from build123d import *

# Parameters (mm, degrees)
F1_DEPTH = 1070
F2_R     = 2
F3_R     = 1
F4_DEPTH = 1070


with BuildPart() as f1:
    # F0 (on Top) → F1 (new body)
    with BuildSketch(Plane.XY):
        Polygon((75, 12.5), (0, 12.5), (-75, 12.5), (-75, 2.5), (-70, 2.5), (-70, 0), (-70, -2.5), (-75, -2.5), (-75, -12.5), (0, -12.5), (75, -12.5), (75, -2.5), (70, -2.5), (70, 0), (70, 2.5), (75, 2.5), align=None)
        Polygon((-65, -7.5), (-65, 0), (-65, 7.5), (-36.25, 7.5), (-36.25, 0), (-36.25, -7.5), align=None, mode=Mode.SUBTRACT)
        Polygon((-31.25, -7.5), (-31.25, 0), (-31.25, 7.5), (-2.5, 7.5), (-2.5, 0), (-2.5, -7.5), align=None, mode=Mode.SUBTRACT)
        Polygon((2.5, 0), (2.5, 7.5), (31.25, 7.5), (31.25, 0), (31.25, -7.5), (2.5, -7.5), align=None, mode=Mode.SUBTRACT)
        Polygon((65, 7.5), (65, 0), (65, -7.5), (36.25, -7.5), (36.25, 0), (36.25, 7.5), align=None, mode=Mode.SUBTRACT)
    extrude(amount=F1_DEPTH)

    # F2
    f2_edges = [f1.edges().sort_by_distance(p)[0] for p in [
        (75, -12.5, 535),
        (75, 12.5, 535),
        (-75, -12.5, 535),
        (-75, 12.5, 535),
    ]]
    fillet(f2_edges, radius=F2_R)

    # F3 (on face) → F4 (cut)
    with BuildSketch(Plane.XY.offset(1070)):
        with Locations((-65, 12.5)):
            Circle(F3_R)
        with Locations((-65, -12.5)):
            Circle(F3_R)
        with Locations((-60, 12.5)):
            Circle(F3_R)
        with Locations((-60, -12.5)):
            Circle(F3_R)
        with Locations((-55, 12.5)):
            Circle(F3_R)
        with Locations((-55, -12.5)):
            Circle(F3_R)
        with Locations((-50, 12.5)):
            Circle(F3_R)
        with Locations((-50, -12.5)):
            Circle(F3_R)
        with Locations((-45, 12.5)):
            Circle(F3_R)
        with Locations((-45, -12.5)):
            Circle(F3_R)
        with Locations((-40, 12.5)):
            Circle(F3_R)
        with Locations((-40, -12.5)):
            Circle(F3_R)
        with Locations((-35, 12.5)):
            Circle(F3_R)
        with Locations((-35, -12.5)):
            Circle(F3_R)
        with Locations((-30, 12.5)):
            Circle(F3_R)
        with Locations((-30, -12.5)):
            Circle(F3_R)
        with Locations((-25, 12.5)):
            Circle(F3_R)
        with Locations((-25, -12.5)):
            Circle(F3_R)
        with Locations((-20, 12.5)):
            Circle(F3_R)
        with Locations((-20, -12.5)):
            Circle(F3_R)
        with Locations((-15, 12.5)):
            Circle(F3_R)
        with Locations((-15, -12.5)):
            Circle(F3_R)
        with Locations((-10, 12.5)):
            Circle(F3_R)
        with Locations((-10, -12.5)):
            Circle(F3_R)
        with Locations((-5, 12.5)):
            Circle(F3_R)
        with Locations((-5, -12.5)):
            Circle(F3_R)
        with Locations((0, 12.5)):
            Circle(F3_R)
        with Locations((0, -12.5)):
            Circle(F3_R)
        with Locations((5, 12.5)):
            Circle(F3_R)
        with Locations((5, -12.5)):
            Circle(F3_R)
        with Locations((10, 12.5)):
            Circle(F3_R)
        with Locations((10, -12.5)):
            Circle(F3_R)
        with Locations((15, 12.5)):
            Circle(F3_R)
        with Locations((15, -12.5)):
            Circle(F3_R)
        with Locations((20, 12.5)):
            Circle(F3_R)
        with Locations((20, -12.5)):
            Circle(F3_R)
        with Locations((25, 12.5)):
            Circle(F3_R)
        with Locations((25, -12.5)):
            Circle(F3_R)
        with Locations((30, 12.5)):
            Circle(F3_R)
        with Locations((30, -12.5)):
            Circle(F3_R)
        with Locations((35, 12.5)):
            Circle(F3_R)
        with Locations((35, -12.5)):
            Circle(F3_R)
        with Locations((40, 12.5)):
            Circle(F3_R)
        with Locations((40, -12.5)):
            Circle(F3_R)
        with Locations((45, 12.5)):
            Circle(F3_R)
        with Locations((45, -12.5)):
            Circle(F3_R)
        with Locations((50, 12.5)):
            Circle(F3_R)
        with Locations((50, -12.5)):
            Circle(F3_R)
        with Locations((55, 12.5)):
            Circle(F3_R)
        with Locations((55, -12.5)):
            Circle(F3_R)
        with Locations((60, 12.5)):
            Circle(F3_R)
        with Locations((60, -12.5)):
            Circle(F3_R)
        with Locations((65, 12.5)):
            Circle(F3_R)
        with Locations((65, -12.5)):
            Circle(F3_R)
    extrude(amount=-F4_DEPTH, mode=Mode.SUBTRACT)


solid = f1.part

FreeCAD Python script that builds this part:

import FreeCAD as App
import Part
import Sketcher

V = App.Vector
Q = App.Units.Quantity


def edges_at(feature, points):
    """Names of the edges that pass closest to the given points."""
    edges = feature.Shape.Edges
    near = lambda p: min(range(len(edges)), key=lambda i: edges[i].distToShape(Part.Vertex(*p))[0])
    return sorted({f"Edge{near(p) + 1}" for p in points})

doc = App.newDocument("Part")
body = doc.addObject("PartDesign::Body", "Body")

sketch1 = body.newObject("Sketcher::SketchObject", "Sketch")
sketch1.AttachmentSupport = (doc.getObject("XY_Plane"), [""])
sketch1.MapMode = "FlatFace"
sketch1.addGeometry(Part.LineSegment(V(75, 12.5, 0), V(-75, 12.5, 0)), False)
sketch1.addGeometry(Part.LineSegment(V(-75, 12.5, 0), V(-75, 2.5, 0)), False)
sketch1.addGeometry(Part.LineSegment(V(-75, 2.5, 0), V(-70, 2.5, 0)), False)
sketch1.addGeometry(Part.LineSegment(V(-70, 2.5, 0), V(-70, -2.5, 0)), False)
sketch1.addGeometry(Part.LineSegment(V(-70, -2.5, 0), V(-75, -2.5, 0)), False)
sketch1.addGeometry(Part.LineSegment(V(-75, -2.5, 0), V(-75, -12.5, 0)), False)
sketch1.addGeometry(Part.LineSegment(V(-75, -12.5, 0), V(75, -12.5, 0)), False)
sketch1.addGeometry(Part.LineSegment(V(75, -12.5, 0), V(75, -2.5, 0)), False)
sketch1.addGeometry(Part.LineSegment(V(75, -2.5, 0), V(70, -2.5, 0)), False)
sketch1.addGeometry(Part.LineSegment(V(70, -2.5, 0), V(70, 2.5, 0)), False)
sketch1.addGeometry(Part.LineSegment(V(70, 2.5, 0), V(75, 2.5, 0)), False)
sketch1.addGeometry(Part.LineSegment(V(75, 2.5, 0), V(75, 12.5, 0)), False)
sketch1.addGeometry(Part.LineSegment(V(-36.25, -7.5, 0), V(-65, -7.5, 0)), False)
sketch1.addGeometry(Part.LineSegment(V(-65, -7.5, 0), V(-65, 7.5, 0)), False)
sketch1.addGeometry(Part.LineSegment(V(-65, 7.5, 0), V(-36.25, 7.5, 0)), False)
sketch1.addGeometry(Part.LineSegment(V(-36.25, 7.5, 0), V(-36.25, -7.5, 0)), False)
sketch1.addGeometry(Part.LineSegment(V(-2.5, -7.5, 0), V(-31.25, -7.5, 0)), False)
sketch1.addGeometry(Part.LineSegment(V(-31.25, -7.5, 0), V(-31.25, 7.5, 0)), False)
sketch1.addGeometry(Part.LineSegment(V(-31.25, 7.5, 0), V(-2.5, 7.5, 0)), False)
sketch1.addGeometry(Part.LineSegment(V(-2.5, 7.5, 0), V(-2.5, -7.5, 0)), False)
sketch1.addGeometry(Part.LineSegment(V(2.5, -7.5, 0), V(2.5, 7.5, 0)), False)
sketch1.addGeometry(Part.LineSegment(V(2.5, 7.5, 0), V(31.25, 7.5, 0)), False)
sketch1.addGeometry(Part.LineSegment(V(31.25, 7.5, 0), V(31.25, -7.5, 0)), False)
sketch1.addGeometry(Part.LineSegment(V(31.25, -7.5, 0), V(2.5, -7.5, 0)), False)
sketch1.addGeometry(Part.LineSegment(V(36.25, 7.5, 0), V(65, 7.5, 0)), False)
sketch1.addGeometry(Part.LineSegment(V(65, 7.5, 0), V(65, -7.5, 0)), False)
sketch1.addGeometry(Part.LineSegment(V(65, -7.5, 0), V(36.25, -7.5, 0)), False)
sketch1.addGeometry(Part.LineSegment(V(36.25, -7.5, 0), V(36.25, 7.5, 0)), False)
sketch1.addConstraint(Sketcher.Constraint("Coincident", 0, 2, 1, 1))
sketch1.addConstraint(Sketcher.Constraint("Coincident", 1, 2, 2, 1))
sketch1.addConstraint(Sketcher.Constraint("Coincident", 2, 2, 3, 1))
sketch1.addConstraint(Sketcher.Constraint("Coincident", 3, 2, 4, 1))
sketch1.addConstraint(Sketcher.Constraint("Coincident", 4, 2, 5, 1))
sketch1.addConstraint(Sketcher.Constraint("Coincident", 5, 2, 6, 1))
sketch1.addConstraint(Sketcher.Constraint("Coincident", 6, 2, 7, 1))
sketch1.addConstraint(Sketcher.Constraint("Coincident", 7, 2, 8, 1))
sketch1.addConstraint(Sketcher.Constraint("Coincident", 8, 2, 9, 1))
sketch1.addConstraint(Sketcher.Constraint("Coincident", 9, 2, 10, 1))
sketch1.addConstraint(Sketcher.Constraint("Coincident", 10, 2, 11, 1))
sketch1.addConstraint(Sketcher.Constraint("Coincident", 11, 2, 0, 1))
sketch1.addConstraint(Sketcher.Constraint("Coincident", 12, 2, 13, 1))
sketch1.addConstraint(Sketcher.Constraint("Coincident", 13, 2, 14, 1))
sketch1.addConstraint(Sketcher.Constraint("Coincident", 14, 2, 15, 1))
sketch1.addConstraint(Sketcher.Constraint("Coincident", 15, 2, 12, 1))
sketch1.addConstraint(Sketcher.Constraint("Coincident", 16, 2, 17, 1))
sketch1.addConstraint(Sketcher.Constraint("Coincident", 17, 2, 18, 1))
sketch1.addConstraint(Sketcher.Constraint("Coincident", 18, 2, 19, 1))
sketch1.addConstraint(Sketcher.Constraint("Coincident", 19, 2, 16, 1))
sketch1.addConstraint(Sketcher.Constraint("Coincident", 20, 2, 21, 1))
sketch1.addConstraint(Sketcher.Constraint("Coincident", 21, 2, 22, 1))
sketch1.addConstraint(Sketcher.Constraint("Coincident", 22, 2, 23, 1))
sketch1.addConstraint(Sketcher.Constraint("Coincident", 23, 2, 20, 1))
sketch1.addConstraint(Sketcher.Constraint("Coincident", 24, 2, 25, 1))
sketch1.addConstraint(Sketcher.Constraint("Coincident", 25, 2, 26, 1))
sketch1.addConstraint(Sketcher.Constraint("Coincident", 26, 2, 27, 1))
sketch1.addConstraint(Sketcher.Constraint("Coincident", 27, 2, 24, 1))
sketch1.addConstraint(Sketcher.Constraint("Horizontal", 0))
sketch1.addConstraint(Sketcher.Constraint("Vertical", 1))
sketch1.addConstraint(Sketcher.Constraint("Horizontal", 2))
sketch1.addConstraint(Sketcher.Constraint("Vertical", 3))
sketch1.addConstraint(Sketcher.Constraint("Horizontal", 4))
sketch1.addConstraint(Sketcher.Constraint("Vertical", 5))
sketch1.addConstraint(Sketcher.Constraint("Horizontal", 6))
sketch1.addConstraint(Sketcher.Constraint("Vertical", 7))
sketch1.addConstraint(Sketcher.Constraint("Horizontal", 8))
sketch1.addConstraint(Sketcher.Constraint("Vertical", 9))
sketch1.addConstraint(Sketcher.Constraint("Horizontal", 10))
sketch1.addConstraint(Sketcher.Constraint("Vertical", 11))
sketch1.addConstraint(Sketcher.Constraint("Horizontal", 12))
sketch1.addConstraint(Sketcher.Constraint("Vertical", 13))
sketch1.addConstraint(Sketcher.Constraint("Horizontal", 14))
sketch1.addConstraint(Sketcher.Constraint("Vertical", 15))
sketch1.addConstraint(Sketcher.Constraint("Horizontal", 16))
sketch1.addConstraint(Sketcher.Constraint("Vertical", 17))
sketch1.addConstraint(Sketcher.Constraint("Horizontal", 18))
sketch1.addConstraint(Sketcher.Constraint("Vertical", 19))
sketch1.addConstraint(Sketcher.Constraint("Vertical", 20))
sketch1.addConstraint(Sketcher.Constraint("Horizontal", 21))
sketch1.addConstraint(Sketcher.Constraint("Vertical", 22))
sketch1.addConstraint(Sketcher.Constraint("Horizontal", 23))
sketch1.addConstraint(Sketcher.Constraint("Horizontal", 24))
sketch1.addConstraint(Sketcher.Constraint("Vertical", 25))
sketch1.addConstraint(Sketcher.Constraint("Horizontal", 26))
sketch1.addConstraint(Sketcher.Constraint("Vertical", 27))
sketch1.addConstraint(Sketcher.Constraint("Symmetric", 0, 2, 6, 2, -1, 1))
sketch1.addConstraint(Sketcher.Constraint("Symmetric", 2, 2, 8, 2, -1, 1))
sketch1.addConstraint(Sketcher.Constraint("Symmetric", 4, 2, 10, 2, -1, 1))
sketch1.addConstraint(Sketcher.Constraint("Symmetric", 19, 2, 20, 2, -1, 1))
sketch1.addConstraint(Sketcher.Constraint("Symmetric", 17, 2, 22, 2, -1, 1))
sketch1.addConstraint(Sketcher.Constraint("Symmetric", 12, 2, 24, 2, -1, 1))
sketch1.addConstraint(Sketcher.Constraint("Symmetric", 14, 2, 26, 2, -1, 1))
sketch1.addConstraint(Sketcher.Constraint("Symmetric", 4, 2, 7, 2, -2))
sketch1.addConstraint(Sketcher.Constraint("Horizontal", 15, 2, 16, 2))
sketch1.addConstraint(Sketcher.Constraint("Horizontal", 14, 2, 17, 2))
sketch1.addConstraint(Sketcher.Constraint("Horizontal", 18, 2, 20, 2))
sketch1.addConstraint(Sketcher.Constraint("Equal", 14, 16))
sketch1.addConstraint(Sketcher.Constraint("Equal", 10, 3))
sketch1.addConstraint(Sketcher.Constraint("DistanceX", 0, 2, 0, 1, Q("150 mm")))
sketch1.addConstraint(Sketcher.Constraint("DistanceX", 2, 1, 2, 2, Q("5 mm")))
sketch1.addConstraint(Sketcher.Constraint("DistanceY", 1, 2, 1, 1, Q("10 mm")))
sketch1.addConstraint(Sketcher.Constraint("DistanceY", 13, 1, 13, 2, Q("15 mm")))
sketch1.addConstraint(Sketcher.Constraint("DistanceX", 12, 2, -1, 1, Q("65 mm")))
sketch1.addConstraint(Sketcher.Constraint("DistanceX", 15, 2, 16, 2, Q("5 mm")))
sketch1.addConstraint(Sketcher.Constraint("DistanceX", 18, 2, 20, 2, Q("5 mm")))
pad1 = body.newObject("PartDesign::Pad", "Pad")
pad1.Profile = sketch1
pad1.Length = 1070
doc.recompute()

fillet = body.newObject("PartDesign::Fillet", "Fillet")
fillet.Base = (pad1, edges_at(pad1, [
    (75, -12.5, 535),
    (75, 12.5, 535),
    (-75, -12.5, 535),
    (-75, 12.5, 535),
]))
fillet.Radius = 2

sketch2 = body.newObject("Sketcher::SketchObject", "Sketch001")
sketch2.AttachmentSupport = (doc.getObject("XY_Plane"), [""])
sketch2.MapMode = "FlatFace"
sketch2.AttachmentOffset = App.Placement(V(0, 0, 1070), App.Rotation())
sketch2.addGeometry(Part.Circle(V(-65, 12.5, 0), V(0, 0, 1), 1), False)
sketch2.addGeometry(Part.Circle(V(-65, -12.5, 0), V(0, 0, 1), 1), False)
sketch2.addGeometry(Part.Circle(V(-60, 12.5, 0), V(0, 0, 1), 1), False)
sketch2.addGeometry(Part.Circle(V(-60, -12.5, 0), V(0, 0, 1), 1), False)
sketch2.addGeometry(Part.Circle(V(-55, 12.5, 0), V(0, 0, 1), 1), False)
sketch2.addGeometry(Part.Circle(V(-55, -12.5, 0), V(0, 0, 1), 1), False)
sketch2.addGeometry(Part.Circle(V(-50, 12.5, 0), V(0, 0, 1), 1), False)
sketch2.addGeometry(Part.Circle(V(-50, -12.5, 0), V(0, 0, 1), 1), False)
sketch2.addGeometry(Part.Circle(V(-45, 12.5, 0), V(0, 0, 1), 1), False)
sketch2.addGeometry(Part.Circle(V(-45, -12.5, 0), V(0, 0, 1), 1), False)
sketch2.addGeometry(Part.Circle(V(-40, 12.5, 0), V(0, 0, 1), 1), False)
sketch2.addGeometry(Part.Circle(V(-40, -12.5, 0), V(0, 0, 1), 1), False)
sketch2.addGeometry(Part.Circle(V(-35, 12.5, 0), V(0, 0, 1), 1), False)
sketch2.addGeometry(Part.Circle(V(-35, -12.5, 0), V(0, 0, 1), 1), False)
sketch2.addGeometry(Part.Circle(V(-30, 12.5, 0), V(0, 0, 1), 1), False)
sketch2.addGeometry(Part.Circle(V(-30, -12.5, 0), V(0, 0, 1), 1), False)
sketch2.addGeometry(Part.Circle(V(-25, 12.5, 0), V(0, 0, 1), 1), False)
sketch2.addGeometry(Part.Circle(V(-25, -12.5, 0), V(0, 0, 1), 1), False)
sketch2.addGeometry(Part.Circle(V(-20, 12.5, 0), V(0, 0, 1), 1), False)
sketch2.addGeometry(Part.Circle(V(-20, -12.5, 0), V(0, 0, 1), 1), False)
sketch2.addGeometry(Part.Circle(V(-15, 12.5, 0), V(0, 0, 1), 1), False)
sketch2.addGeometry(Part.Circle(V(-15, -12.5, 0), V(0, 0, 1), 1), False)
sketch2.addGeometry(Part.Circle(V(-10, 12.5, 0), V(0, 0, 1), 1), False)
sketch2.addGeometry(Part.Circle(V(-10, -12.5, 0), V(0, 0, 1), 1), False)
sketch2.addGeometry(Part.Circle(V(-5, 12.5, 0), V(0, 0, 1), 1), False)
sketch2.addGeometry(Part.Circle(V(-5, -12.5, 0), V(0, 0, 1), 1), False)
sketch2.addGeometry(Part.Circle(V(0, 12.5, 0), V(0, 0, 1), 1), False)
sketch2.addGeometry(Part.Circle(V(0, -12.5, 0), V(0, 0, 1), 1), False)
sketch2.addGeometry(Part.Circle(V(5, 12.5, 0), V(0, 0, 1), 1), False)
sketch2.addGeometry(Part.Circle(V(5, -12.5, 0), V(0, 0, 1), 1), False)
sketch2.addGeometry(Part.Circle(V(10, 12.5, 0), V(0, 0, 1), 1), False)
sketch2.addGeometry(Part.Circle(V(10, -12.5, 0), V(0, 0, 1), 1), False)
sketch2.addGeometry(Part.Circle(V(15, 12.5, 0), V(0, 0, 1), 1), False)
sketch2.addGeometry(Part.Circle(V(15, -12.5, 0), V(0, 0, 1), 1), False)
sketch2.addGeometry(Part.Circle(V(20, 12.5, 0), V(0, 0, 1), 1), False)
sketch2.addGeometry(Part.Circle(V(20, -12.5, 0), V(0, 0, 1), 1), False)
sketch2.addGeometry(Part.Circle(V(25, 12.5, 0), V(0, 0, 1), 1), False)
sketch2.addGeometry(Part.Circle(V(25, -12.5, 0), V(0, 0, 1), 1), False)
sketch2.addGeometry(Part.Circle(V(30, 12.5, 0), V(0, 0, 1), 1), False)
sketch2.addGeometry(Part.Circle(V(30, -12.5, 0), V(0, 0, 1), 1), False)
sketch2.addGeometry(Part.Circle(V(35, 12.5, 0), V(0, 0, 1), 1), False)
sketch2.addGeometry(Part.Circle(V(35, -12.5, 0), V(0, 0, 1), 1), False)
sketch2.addGeometry(Part.Circle(V(40, 12.5, 0), V(0, 0, 1), 1), False)
sketch2.addGeometry(Part.Circle(V(40, -12.5, 0), V(0, 0, 1), 1), False)
sketch2.addGeometry(Part.Circle(V(45, 12.5, 0), V(0, 0, 1), 1), False)
sketch2.addGeometry(Part.Circle(V(45, -12.5, 0), V(0, 0, 1), 1), False)
sketch2.addGeometry(Part.Circle(V(50, 12.5, 0), V(0, 0, 1), 1), False)
sketch2.addGeometry(Part.Circle(V(50, -12.5, 0), V(0, 0, 1), 1), False)
sketch2.addGeometry(Part.Circle(V(55, 12.5, 0), V(0, 0, 1), 1), False)
sketch2.addGeometry(Part.Circle(V(55, -12.5, 0), V(0, 0, 1), 1), False)
sketch2.addGeometry(Part.Circle(V(60, 12.5, 0), V(0, 0, 1), 1), False)
sketch2.addGeometry(Part.Circle(V(60, -12.5, 0), V(0, 0, 1), 1), False)
sketch2.addGeometry(Part.Circle(V(65, 12.5, 0), V(0, 0, 1), 1), False)
sketch2.addGeometry(Part.Circle(V(65, -12.5, 0), V(0, 0, 1), 1), False)
sketch2.addConstraint(Sketcher.Constraint("Equal", 0, 1))
sketch2.addConstraint(Sketcher.Constraint("Equal", 1, 2))
sketch2.addConstraint(Sketcher.Constraint("Equal", 2, 3))
sketch2.addConstraint(Sketcher.Constraint("Equal", 3, 4))
sketch2.addConstraint(Sketcher.Constraint("Equal", 4, 5))
sketch2.addConstraint(Sketcher.Constraint("Equal", 5, 6))
sketch2.addConstraint(Sketcher.Constraint("Equal", 6, 7))
sketch2.addConstraint(Sketcher.Constraint("Equal", 7, 8))
sketch2.addConstraint(Sketcher.Constraint("Equal", 8, 9))
sketch2.addConstraint(Sketcher.Constraint("Equal", 9, 10))
sketch2.addConstraint(Sketcher.Constraint("Equal", 10, 11))
sketch2.addConstraint(Sketcher.Constraint("Equal", 11, 12))
sketch2.addConstraint(Sketcher.Constraint("Equal", 12, 13))
sketch2.addConstraint(Sketcher.Constraint("Equal", 13, 14))
sketch2.addConstraint(Sketcher.Constraint("Equal", 14, 15))
sketch2.addConstraint(Sketcher.Constraint("Equal", 15, 16))
sketch2.addConstraint(Sketcher.Constraint("Equal", 16, 17))
sketch2.addConstraint(Sketcher.Constraint("Equal", 17, 18))
sketch2.addConstraint(Sketcher.Constraint("Equal", 18, 19))
sketch2.addConstraint(Sketcher.Constraint("Equal", 19, 20))
sketch2.addConstraint(Sketcher.Constraint("Equal", 20, 21))
sketch2.addConstraint(Sketcher.Constraint("Equal", 21, 22))
sketch2.addConstraint(Sketcher.Constraint("Equal", 22, 23))
sketch2.addConstraint(Sketcher.Constraint("Equal", 23, 24))
sketch2.addConstraint(Sketcher.Constraint("Equal", 24, 25))
sketch2.addConstraint(Sketcher.Constraint("Equal", 25, 26))
sketch2.addConstraint(Sketcher.Constraint("Equal", 26, 27))
sketch2.addConstraint(Sketcher.Constraint("Equal", 27, 28))
sketch2.addConstraint(Sketcher.Constraint("Equal", 28, 29))
sketch2.addConstraint(Sketcher.Constraint("Equal", 29, 30))
sketch2.addConstraint(Sketcher.Constraint("Equal", 30, 31))
sketch2.addConstraint(Sketcher.Constraint("Equal", 31, 32))
sketch2.addConstraint(Sketcher.Constraint("Equal", 32, 33))
sketch2.addConstraint(Sketcher.Constraint("Equal", 33, 34))
sketch2.addConstraint(Sketcher.Constraint("Equal", 34, 35))
sketch2.addConstraint(Sketcher.Constraint("Equal", 35, 36))
sketch2.addConstraint(Sketcher.Constraint("Equal", 36, 37))
sketch2.addConstraint(Sketcher.Constraint("Equal", 37, 38))
sketch2.addConstraint(Sketcher.Constraint("Equal", 38, 39))
sketch2.addConstraint(Sketcher.Constraint("Equal", 39, 40))
sketch2.addConstraint(Sketcher.Constraint("Equal", 40, 41))
sketch2.addConstraint(Sketcher.Constraint("Equal", 41, 42))
sketch2.addConstraint(Sketcher.Constraint("Equal", 42, 43))
sketch2.addConstraint(Sketcher.Constraint("Equal", 43, 44))
sketch2.addConstraint(Sketcher.Constraint("Equal", 44, 45))
sketch2.addConstraint(Sketcher.Constraint("Equal", 45, 46))
sketch2.addConstraint(Sketcher.Constraint("Equal", 46, 47))
sketch2.addConstraint(Sketcher.Constraint("Equal", 47, 48))
sketch2.addConstraint(Sketcher.Constraint("Equal", 48, 49))
sketch2.addConstraint(Sketcher.Constraint("Equal", 49, 50))
sketch2.addConstraint(Sketcher.Constraint("Equal", 50, 51))
sketch2.addConstraint(Sketcher.Constraint("Equal", 51, 52))
sketch2.addConstraint(Sketcher.Constraint("Equal", 52, 53))
sketch2.addConstraint(Sketcher.Constraint("Symmetric", 26, 3, 27, 3, -1, 1))
sketch2.addConstraint(Sketcher.Constraint("Symmetric", 25, 3, 28, 3, -1, 1))
sketch2.addConstraint(Sketcher.Constraint("Symmetric", 24, 3, 29, 3, -1, 1))
sketch2.addConstraint(Sketcher.Constraint("Symmetric", 23, 3, 30, 3, -1, 1))
sketch2.addConstraint(Sketcher.Constraint("Symmetric", 22, 3, 31, 3, -1, 1))
sketch2.addConstraint(Sketcher.Constraint("Symmetric", 21, 3, 32, 3, -1, 1))
sketch2.addConstraint(Sketcher.Constraint("Symmetric", 20, 3, 33, 3, -1, 1))
sketch2.addConstraint(Sketcher.Constraint("Symmetric", 19, 3, 34, 3, -1, 1))
sketch2.addConstraint(Sketcher.Constraint("Symmetric", 18, 3, 35, 3, -1, 1))
sketch2.addConstraint(Sketcher.Constraint("Symmetric", 17, 3, 36, 3, -1, 1))
sketch2.addConstraint(Sketcher.Constraint("Symmetric", 16, 3, 37, 3, -1, 1))
sketch2.addConstraint(Sketcher.Constraint("Symmetric", 15, 3, 38, 3, -1, 1))
sketch2.addConstraint(Sketcher.Constraint("Symmetric", 14, 3, 39, 3, -1, 1))
sketch2.addConstraint(Sketcher.Constraint("Symmetric", 13, 3, 40, 3, -1, 1))
sketch2.addConstraint(Sketcher.Constraint("Symmetric", 12, 3, 41, 3, -1, 1))
sketch2.addConstraint(Sketcher.Constraint("Symmetric", 11, 3, 42, 3, -1, 1))
sketch2.addConstraint(Sketcher.Constraint("Symmetric", 10, 3, 43, 3, -1, 1))
sketch2.addConstraint(Sketcher.Constraint("Symmetric", 9, 3, 44, 3, -1, 1))
sketch2.addConstraint(Sketcher.Constraint("Symmetric", 8, 3, 45, 3, -1, 1))
sketch2.addConstraint(Sketcher.Constraint("Symmetric", 7, 3, 46, 3, -1, 1))
sketch2.addConstraint(Sketcher.Constraint("Symmetric", 6, 3, 47, 3, -1, 1))
sketch2.addConstraint(Sketcher.Constraint("Symmetric", 5, 3, 48, 3, -1, 1))
sketch2.addConstraint(Sketcher.Constraint("Symmetric", 4, 3, 49, 3, -1, 1))
sketch2.addConstraint(Sketcher.Constraint("Symmetric", 3, 3, 50, 3, -1, 1))
sketch2.addConstraint(Sketcher.Constraint("Symmetric", 2, 3, 51, 3, -1, 1))
sketch2.addConstraint(Sketcher.Constraint("Symmetric", 1, 3, 52, 3, -1, 1))
sketch2.addConstraint(Sketcher.Constraint("Symmetric", 0, 3, 53, 3, -1, 1))
sketch2.addConstraint(Sketcher.Constraint("Symmetric", 24, 3, 28, 3, -2))
sketch2.addConstraint(Sketcher.Constraint("Symmetric", 22, 3, 30, 3, -2))
sketch2.addConstraint(Sketcher.Constraint("Symmetric", 20, 3, 32, 3, -2))
sketch2.addConstraint(Sketcher.Constraint("Symmetric", 18, 3, 34, 3, -2))
sketch2.addConstraint(Sketcher.Constraint("Symmetric", 16, 3, 36, 3, -2))
sketch2.addConstraint(Sketcher.Constraint("Symmetric", 14, 3, 38, 3, -2))
sketch2.addConstraint(Sketcher.Constraint("Symmetric", 12, 3, 40, 3, -2))
sketch2.addConstraint(Sketcher.Constraint("Symmetric", 10, 3, 42, 3, -2))
sketch2.addConstraint(Sketcher.Constraint("Symmetric", 8, 3, 44, 3, -2))
sketch2.addConstraint(Sketcher.Constraint("Symmetric", 6, 3, 46, 3, -2))
sketch2.addConstraint(Sketcher.Constraint("Symmetric", 4, 3, 48, 3, -2))
sketch2.addConstraint(Sketcher.Constraint("Symmetric", 2, 3, 50, 3, -2))
sketch2.addConstraint(Sketcher.Constraint("Symmetric", 0, 3, 52, 3, -2))
sketch2.addConstraint(Sketcher.Constraint("PointOnObject", 26, 3, -2))
sketch2.addConstraint(Sketcher.Constraint("Horizontal", 0, 3, 2, 3))
sketch2.addConstraint(Sketcher.Constraint("Horizontal", 2, 3, 4, 3))
sketch2.addConstraint(Sketcher.Constraint("Horizontal", 4, 3, 6, 3))
sketch2.addConstraint(Sketcher.Constraint("Horizontal", 6, 3, 8, 3))
sketch2.addConstraint(Sketcher.Constraint("Horizontal", 8, 3, 10, 3))
sketch2.addConstraint(Sketcher.Constraint("Horizontal", 10, 3, 12, 3))
sketch2.addConstraint(Sketcher.Constraint("Horizontal", 12, 3, 14, 3))
sketch2.addConstraint(Sketcher.Constraint("Horizontal", 14, 3, 16, 3))
sketch2.addConstraint(Sketcher.Constraint("Horizontal", 16, 3, 18, 3))
sketch2.addConstraint(Sketcher.Constraint("Horizontal", 18, 3, 20, 3))
sketch2.addConstraint(Sketcher.Constraint("Horizontal", 20, 3, 22, 3))
sketch2.addConstraint(Sketcher.Constraint("Horizontal", 22, 3, 24, 3))
sketch2.addConstraint(Sketcher.Constraint("Horizontal", 24, 3, 26, 3))
sketch2.addConstraint(Sketcher.Constraint("Diameter", 0, Q("2 mm")))
sketch2.addConstraint(Sketcher.Constraint("DistanceX", 0, 3, -1, 1, Q("65 mm")))
sketch2.addConstraint(Sketcher.Constraint("DistanceX", 2, 3, -1, 1, Q("60 mm")))
sketch2.addConstraint(Sketcher.Constraint("DistanceX", 4, 3, -1, 1, Q("55 mm")))
sketch2.addConstraint(Sketcher.Constraint("DistanceX", 6, 3, -1, 1, Q("50 mm")))
sketch2.addConstraint(Sketcher.Constraint("DistanceX", 8, 3, -1, 1, Q("45 mm")))
sketch2.addConstraint(Sketcher.Constraint("DistanceX", 10, 3, -1, 1, Q("40 mm")))
sketch2.addConstraint(Sketcher.Constraint("DistanceX", 12, 3, -1, 1, Q("35 mm")))
sketch2.addConstraint(Sketcher.Constraint("DistanceX", 14, 3, -1, 1, Q("30 mm")))
sketch2.addConstraint(Sketcher.Constraint("DistanceX", 16, 3, -1, 1, Q("25 mm")))
sketch2.addConstraint(Sketcher.Constraint("DistanceX", 18, 3, -1, 1, Q("20 mm")))
sketch2.addConstraint(Sketcher.Constraint("DistanceX", 20, 3, -1, 1, Q("15 mm")))
sketch2.addConstraint(Sketcher.Constraint("DistanceX", 22, 3, -1, 1, Q("10 mm")))
sketch2.addConstraint(Sketcher.Constraint("DistanceX", 24, 3, -1, 1, Q("5 mm")))
sketch2.addConstraint(Sketcher.Constraint("DistanceY", 1, 3, 0, 3, Q("25 mm")))
pocket1 = body.newObject("PartDesign::Pocket", "Pocket")
pocket1.Profile = sketch2
pocket1.Length = 1070

doc.recompute()
